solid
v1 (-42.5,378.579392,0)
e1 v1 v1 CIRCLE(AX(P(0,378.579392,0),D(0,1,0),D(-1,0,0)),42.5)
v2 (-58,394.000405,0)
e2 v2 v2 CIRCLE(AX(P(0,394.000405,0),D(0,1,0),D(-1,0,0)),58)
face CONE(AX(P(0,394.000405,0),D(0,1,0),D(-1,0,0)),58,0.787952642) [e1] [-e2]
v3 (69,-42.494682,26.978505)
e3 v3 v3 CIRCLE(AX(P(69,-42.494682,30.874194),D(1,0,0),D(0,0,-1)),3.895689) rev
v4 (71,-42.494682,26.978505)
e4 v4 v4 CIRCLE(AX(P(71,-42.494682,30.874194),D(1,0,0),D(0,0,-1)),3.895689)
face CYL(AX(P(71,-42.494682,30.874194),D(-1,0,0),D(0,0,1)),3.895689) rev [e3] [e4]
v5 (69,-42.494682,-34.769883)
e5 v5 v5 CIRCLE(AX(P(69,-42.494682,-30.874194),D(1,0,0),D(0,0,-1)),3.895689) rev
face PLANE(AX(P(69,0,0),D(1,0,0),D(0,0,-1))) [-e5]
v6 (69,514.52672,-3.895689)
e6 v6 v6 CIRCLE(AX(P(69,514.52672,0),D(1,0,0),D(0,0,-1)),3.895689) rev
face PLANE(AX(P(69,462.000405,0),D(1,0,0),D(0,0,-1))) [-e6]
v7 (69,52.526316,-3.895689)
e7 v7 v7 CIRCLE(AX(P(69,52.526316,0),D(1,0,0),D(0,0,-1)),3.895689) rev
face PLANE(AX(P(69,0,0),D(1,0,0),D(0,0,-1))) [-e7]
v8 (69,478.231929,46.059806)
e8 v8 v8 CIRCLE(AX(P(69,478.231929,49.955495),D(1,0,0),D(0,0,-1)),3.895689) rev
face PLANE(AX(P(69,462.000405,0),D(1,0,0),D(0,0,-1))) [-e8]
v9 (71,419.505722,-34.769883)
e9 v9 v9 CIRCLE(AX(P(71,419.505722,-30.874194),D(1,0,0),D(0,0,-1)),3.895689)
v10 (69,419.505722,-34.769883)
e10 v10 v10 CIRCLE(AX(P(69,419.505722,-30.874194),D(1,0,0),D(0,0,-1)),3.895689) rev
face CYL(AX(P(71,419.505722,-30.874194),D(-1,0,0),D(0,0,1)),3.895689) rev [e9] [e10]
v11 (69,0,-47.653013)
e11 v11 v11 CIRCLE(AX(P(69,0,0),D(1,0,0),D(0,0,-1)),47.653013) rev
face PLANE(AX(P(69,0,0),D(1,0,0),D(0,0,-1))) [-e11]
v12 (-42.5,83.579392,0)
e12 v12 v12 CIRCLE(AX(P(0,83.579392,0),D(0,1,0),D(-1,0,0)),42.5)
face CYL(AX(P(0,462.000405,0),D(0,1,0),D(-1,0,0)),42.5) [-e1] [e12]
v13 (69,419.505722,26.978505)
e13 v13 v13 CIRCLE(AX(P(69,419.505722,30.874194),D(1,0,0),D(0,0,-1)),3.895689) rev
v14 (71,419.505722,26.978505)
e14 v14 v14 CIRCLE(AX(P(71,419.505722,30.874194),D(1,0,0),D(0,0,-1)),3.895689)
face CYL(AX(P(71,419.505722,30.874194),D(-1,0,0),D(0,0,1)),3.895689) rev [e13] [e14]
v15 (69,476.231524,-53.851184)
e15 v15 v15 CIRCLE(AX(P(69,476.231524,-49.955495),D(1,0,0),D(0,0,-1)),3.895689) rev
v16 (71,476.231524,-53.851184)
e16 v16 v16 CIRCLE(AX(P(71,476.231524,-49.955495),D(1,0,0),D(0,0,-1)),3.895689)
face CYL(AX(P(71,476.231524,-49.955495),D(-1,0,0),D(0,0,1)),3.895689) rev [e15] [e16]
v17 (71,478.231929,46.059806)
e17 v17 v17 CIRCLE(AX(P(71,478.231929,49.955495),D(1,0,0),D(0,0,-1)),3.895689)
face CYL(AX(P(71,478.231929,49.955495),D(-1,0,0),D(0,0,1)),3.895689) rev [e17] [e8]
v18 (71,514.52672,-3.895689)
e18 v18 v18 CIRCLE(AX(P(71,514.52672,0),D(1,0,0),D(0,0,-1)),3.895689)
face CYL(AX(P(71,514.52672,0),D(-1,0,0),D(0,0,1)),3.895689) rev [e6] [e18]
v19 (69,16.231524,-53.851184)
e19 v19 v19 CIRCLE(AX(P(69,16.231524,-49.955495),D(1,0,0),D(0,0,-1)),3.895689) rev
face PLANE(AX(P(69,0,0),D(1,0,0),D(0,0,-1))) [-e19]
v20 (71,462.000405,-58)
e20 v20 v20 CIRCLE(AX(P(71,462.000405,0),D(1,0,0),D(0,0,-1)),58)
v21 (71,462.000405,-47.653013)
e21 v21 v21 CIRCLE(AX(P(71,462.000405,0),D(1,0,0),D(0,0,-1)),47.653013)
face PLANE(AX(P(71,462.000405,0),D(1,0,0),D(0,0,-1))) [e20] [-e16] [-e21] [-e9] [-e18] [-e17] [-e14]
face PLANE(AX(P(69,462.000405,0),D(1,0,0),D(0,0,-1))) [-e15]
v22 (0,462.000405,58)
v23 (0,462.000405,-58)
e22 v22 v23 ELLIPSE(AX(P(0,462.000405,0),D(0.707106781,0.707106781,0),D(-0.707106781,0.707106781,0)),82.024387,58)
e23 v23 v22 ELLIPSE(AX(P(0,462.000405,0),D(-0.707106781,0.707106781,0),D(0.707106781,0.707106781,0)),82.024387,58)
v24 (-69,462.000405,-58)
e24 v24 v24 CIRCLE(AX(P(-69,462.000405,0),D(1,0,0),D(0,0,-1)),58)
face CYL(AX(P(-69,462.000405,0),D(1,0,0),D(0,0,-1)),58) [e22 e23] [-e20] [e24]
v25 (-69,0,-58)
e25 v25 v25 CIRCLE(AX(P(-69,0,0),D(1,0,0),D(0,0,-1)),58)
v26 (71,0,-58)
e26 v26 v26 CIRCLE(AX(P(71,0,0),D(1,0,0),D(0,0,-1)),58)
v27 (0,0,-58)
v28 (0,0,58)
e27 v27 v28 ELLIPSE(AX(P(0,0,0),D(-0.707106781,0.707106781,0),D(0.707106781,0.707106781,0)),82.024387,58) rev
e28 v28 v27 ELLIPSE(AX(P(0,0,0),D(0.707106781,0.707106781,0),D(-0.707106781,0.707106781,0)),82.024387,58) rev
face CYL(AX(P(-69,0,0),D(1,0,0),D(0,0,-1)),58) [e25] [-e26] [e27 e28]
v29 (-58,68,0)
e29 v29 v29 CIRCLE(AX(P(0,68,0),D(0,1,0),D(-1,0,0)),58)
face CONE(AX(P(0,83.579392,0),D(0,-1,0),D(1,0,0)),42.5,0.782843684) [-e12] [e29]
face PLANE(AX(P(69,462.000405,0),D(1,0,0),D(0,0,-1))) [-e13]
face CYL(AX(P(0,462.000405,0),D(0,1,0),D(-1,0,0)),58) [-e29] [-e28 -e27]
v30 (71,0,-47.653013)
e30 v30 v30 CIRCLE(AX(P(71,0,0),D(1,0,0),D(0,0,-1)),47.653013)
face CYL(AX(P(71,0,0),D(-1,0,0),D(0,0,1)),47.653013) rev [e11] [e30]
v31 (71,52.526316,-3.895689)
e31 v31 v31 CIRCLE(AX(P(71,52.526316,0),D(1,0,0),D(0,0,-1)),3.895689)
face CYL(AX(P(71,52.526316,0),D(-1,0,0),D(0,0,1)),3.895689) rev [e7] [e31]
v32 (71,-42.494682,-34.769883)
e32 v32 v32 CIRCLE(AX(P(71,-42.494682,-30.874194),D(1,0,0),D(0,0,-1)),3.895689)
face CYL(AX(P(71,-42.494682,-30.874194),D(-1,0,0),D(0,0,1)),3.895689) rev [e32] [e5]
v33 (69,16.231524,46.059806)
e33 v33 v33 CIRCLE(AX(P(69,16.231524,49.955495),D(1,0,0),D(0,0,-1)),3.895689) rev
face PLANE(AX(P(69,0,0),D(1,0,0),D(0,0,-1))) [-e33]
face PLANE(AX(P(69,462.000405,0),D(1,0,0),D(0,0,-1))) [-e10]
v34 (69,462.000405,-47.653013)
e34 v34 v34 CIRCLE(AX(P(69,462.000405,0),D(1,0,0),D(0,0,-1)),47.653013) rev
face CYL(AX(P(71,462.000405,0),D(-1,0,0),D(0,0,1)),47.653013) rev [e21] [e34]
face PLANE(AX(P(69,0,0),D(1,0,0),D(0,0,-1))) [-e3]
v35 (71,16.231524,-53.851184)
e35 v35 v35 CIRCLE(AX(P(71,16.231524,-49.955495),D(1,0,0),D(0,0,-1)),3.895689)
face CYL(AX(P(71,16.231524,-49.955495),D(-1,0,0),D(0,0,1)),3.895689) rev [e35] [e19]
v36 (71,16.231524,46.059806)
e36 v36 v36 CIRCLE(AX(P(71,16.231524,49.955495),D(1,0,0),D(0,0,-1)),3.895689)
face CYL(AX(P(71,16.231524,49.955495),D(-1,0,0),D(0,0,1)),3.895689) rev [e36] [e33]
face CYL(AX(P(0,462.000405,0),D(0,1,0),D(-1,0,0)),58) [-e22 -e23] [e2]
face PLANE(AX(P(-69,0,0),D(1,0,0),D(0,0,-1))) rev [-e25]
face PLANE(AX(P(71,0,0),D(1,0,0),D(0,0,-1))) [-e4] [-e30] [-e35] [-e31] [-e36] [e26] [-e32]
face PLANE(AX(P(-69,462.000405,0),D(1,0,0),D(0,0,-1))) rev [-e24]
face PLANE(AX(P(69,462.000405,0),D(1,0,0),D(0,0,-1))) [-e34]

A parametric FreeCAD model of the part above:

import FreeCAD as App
import Part
import Sketcher

doc = App.newDocument("Part")
body = doc.addObject("PartDesign::Body", "Body")

# Sketch on XY plane
sketch1 = body.newObject("Sketcher::SketchObject", "Sketch")
sketch1.AttachmentSupport = (doc.getObject("XY_Plane"), [""])
sketch1.MapMode = "FlatFace"
sketch1.addGeometry([
    Part.LineSegment(App.Vector(-58, 0, 0), App.Vector(0, 0, 0)),  # 0
    Part.LineSegment(App.Vector(0, 0, 0), App.Vector(0, 462, 0)),  # 1
    Part.LineSegment(App.Vector(0, 462, 0), App.Vector(-58, 462, 0)),  # 2
    Part.LineSegment(App.Vector(-58, 462, 0), App.Vector(-58, 394, 0)),  # 3
    Part.LineSegment(App.Vector(-58, 394, 0), App.Vector(-42, 379, 0)),  # 4
    Part.LineSegment(App.Vector(-42, 379, 0), App.Vector(-42, 84, 0)),  # 5
    Part.LineSegment(App.Vector(-42, 84, 0), App.Vector(-58, 68, 0)),  # 6
    Part.LineSegment(App.Vector(-58, 68, 0), App.Vector(-58, 0, 0)),  # 7
], False)
sketch1.addConstraint([
    Sketcher.Constraint("Coincident", 0, 2, 1, 1),
    Sketcher.Constraint("Coincident", 1, 2, 2, 1),
    Sketcher.Constraint("Coincident", 2, 2, 3, 1),
    Sketcher.Constraint("Coincident", 3, 2, 4, 1),
    Sketcher.Constraint("Coincident", 4, 2, 5, 1),
    Sketcher.Constraint("Coincident", 5, 2, 6, 1),
    Sketcher.Constraint("Coincident", 6, 2, 7, 1),
    Sketcher.Constraint("Coincident", 7, 2, 0, 1),
    Sketcher.Constraint("Horizontal", 0),
    Sketcher.Constraint("Vertical", 1),
    Sketcher.Constraint("Horizontal", 2),
    Sketcher.Constraint("Vertical", 3),
    Sketcher.Constraint("Vertical", 5),
    Sketcher.Constraint("Vertical", 7),
    Sketcher.Constraint("Coincident", 0, 2, -1, 1),
    Sketcher.Constraint("Perpendicular", 4, 6),
    Sketcher.Constraint("Vertical", 3, 2, 6, 2),
    Sketcher.Constraint("Equal", 3, 7),
    Sketcher.Constraint("DistanceX", 0, 1, 0, 2, 58.0),
    Sketcher.Constraint("DistanceY", 3, 2, 3, 1, 68.0),
    Sketcher.Constraint("DistanceY", 5, 2, 5, 1, 295.0),
    Sketcher.Constraint("DistanceX", 4, 2, -1, 1, 42.5),
    Sketcher.Constraint("Distance", 4, 21.864529),
])
revolution = body.newObject("PartDesign::Revolution", "Revolution")
revolution.Profile = sketch1
revolution.ReferenceAxis = (sketch1, ["V_Axis"])
revolution.Angle = 360

# Sketch on YZ plane
sketch2 = body.newObject("Sketcher::SketchObject", "Sketch001")
sketch2.AttachmentSupport = (doc.getObject("YZ_Plane"), [""])
sketch2.MapMode = "FlatFace"
sketch2.addGeometry([
    Part.Circle(App.Vector(462.000405, 0, 0), App.Vector(0, 0, 1), 58),
    Part.Circle(App.Vector(0, 0, 0), App.Vector(0, 0, 1), 58),
], False)
sketch2.addConstraint([
    Sketcher.Constraint("Coincident", 1, 3, -1, 1),
    Sketcher.Constraint("Equal", 0, 1),
    Sketcher.Constraint("PointOnObject", 0, 3, -1),
    Sketcher.Constraint("Diameter", 0, 116.0),
    Sketcher.Constraint("DistanceX", -1, 1, 0, 3, 462.000405),
])
pad1 = body.newObject("PartDesign::Pad", "Pad")
pad1.Profile = sketch2
pad1.Type = "TwoLengths"
pad1.Length = 69
pad1.Length2 = 69

# Sketch on YZ plane
sketch3 = body.newObject("Sketcher::SketchObject", "Sketch002")
sketch3.AttachmentSupport = (doc.getObject("YZ_Plane"), [""])
sketch3.MapMode = "FlatFace"
sketch3.AttachmentOffset = App.Placement(App.Vector(0, 0, 69), App.Rotation())
sketch3.addGeometry([
    Part.Circle(App.Vector(0, 0, 0), App.Vector(0, 0, 1), 58),  # 0
    Part.Circle(App.Vector(-42.5, 30.9, 0), App.Vector(0, 0, 1), 3.9),  # 1
    Part.Circle(App.Vector(-42.5, -30.9, 0), App.Vector(0, 0, 1), 3.9),  # 2
    Part.Circle(App.Vector(0, 0, 0), App.Vector(0, 0, 1), 47.7),  # 3
    Part.Circle(App.Vector(16.2, 50, 0), App.Vector(0, 0, 1), 3.9),  # 4
    Part.Circle(App.Vector(16.2, -50, 0), App.Vector(0, 0, 1), 3.9),  # 5
    Part.Circle(App.Vector(52.5, 0, 0), App.Vector(0, 0, 1), 3.9),  # 6
    Part.Circle(App.Vector(462, 0, 0), App.Vector(0, 0, 1), 58),  # 7
    Part.Circle(App.Vector(419.5, 30.9, 0), App.Vector(0, 0, 1), 3.9),  # 8
    Part.Circle(App.Vector(419.5, -30.9, 0), App.Vector(0, 0, 1), 3.9),  # 9
    Part.Circle(App.Vector(462, 0, 0), App.Vector(0, 0, 1), 47.7),  # 10
    Part.Circle(App.Vector(478.2, 50, 0), App.Vector(0, 0, 1), 3.9),  # 11
    Part.Circle(App.Vector(476.2, -50, 0), App.Vector(0, 0, 1), 3.9),  # 12
    Part.Circle(App.Vector(514.5, 0, 0), App.Vector(0, 0, 1), 3.9),  # 13
], False)
sketch3.addConstraint([
    Sketcher.Constraint("Coincident", 0, 3, -1, 1),
    Sketcher.Constraint("Coincident", 3, 3, -1, 1),
    Sketcher.Constraint("Coincident", 10, 3, 7, 3),
    Sketcher.Constraint("Equal", 1, 2),
    Sketcher.Constraint("Equal", 2, 4),
    Sketcher.Constraint("Equal", 4, 5),
    Sketcher.Constraint("Equal", 5, 6),
    Sketcher.Constraint("Equal", 0, 7),
    Sketcher.Constraint("Equal", 6, 8),
    Sketcher.Constraint("Equal", 8, 9),
    Sketcher.Constraint("Equal", 3, 10),
    Sketcher.Constraint("Equal", 9, 11),
    Sketcher.Constraint("Equal", 11, 12),
    Sketcher.Constraint("Equal", 12, 13),
    Sketcher.Constraint("Symmetric", 1, 3, 2, 3, -1),
    Sketcher.Constraint("Symmetric", 4, 3, 5, 3, -1),
    Sketcher.Constraint("Symmetric", 8, 3, 9, 3, -1),
    Sketcher.Constraint("PointOnObject", 6, 3, -1),
    Sketcher.Constraint("PointOnObject", 7, 3, -1),
    Sketcher.Constraint("PointOnObject", 13, 3, -1),
    Sketcher.Constraint("Horizontal", 1, 3, 8, 3),
    Sketcher.Constraint("Horizontal", 4, 3, 11, 3),
    Sketcher.Constraint("Horizontal", 5, 3, 12, 3),
    Sketcher.Constraint("Diameter", 0, 116.0),
    Sketcher.Constraint("Diameter", 1, 7.791378),
    Sketcher.Constraint("Diameter", 3, 95.306026),
    Sketcher.Constraint("DistanceY", 1, 3, 4, 3, 19.081301),
    Sketcher.Constraint("DistanceX", 4, 3, 8, 3, 403.274198),
    Sketcher.Constraint("DistanceX", 9, 3, 12, 3, 56.725802),
    Sketcher.Constraint("DistanceX", -1, 1, 11, 3, 478.231929),
    Sketcher.Constraint("DistanceX", -1, 1, 13, 3, 514.52672),
    Sketcher.Constraint("DistanceY", 2, 3, 4, 3, 80.829689),
    Sketcher.Constraint("DistanceX", 4, 3, 6, 3, 36.294792),
    Sketcher.Constraint("DistanceX", 6, 3, 7, 3, 409.474089),
    Sketcher.Constraint("DistanceX", 1, 3, -1, 1, 42.494682),
    Sketcher.Constraint("DistanceX", -1, 1, 4, 3, 16.231524),
])
pad2 = body.newObject("PartDesign::Pad", "Pad001")
pad2.Profile = sketch3
pad2.Length = 2

doc.recompute()
